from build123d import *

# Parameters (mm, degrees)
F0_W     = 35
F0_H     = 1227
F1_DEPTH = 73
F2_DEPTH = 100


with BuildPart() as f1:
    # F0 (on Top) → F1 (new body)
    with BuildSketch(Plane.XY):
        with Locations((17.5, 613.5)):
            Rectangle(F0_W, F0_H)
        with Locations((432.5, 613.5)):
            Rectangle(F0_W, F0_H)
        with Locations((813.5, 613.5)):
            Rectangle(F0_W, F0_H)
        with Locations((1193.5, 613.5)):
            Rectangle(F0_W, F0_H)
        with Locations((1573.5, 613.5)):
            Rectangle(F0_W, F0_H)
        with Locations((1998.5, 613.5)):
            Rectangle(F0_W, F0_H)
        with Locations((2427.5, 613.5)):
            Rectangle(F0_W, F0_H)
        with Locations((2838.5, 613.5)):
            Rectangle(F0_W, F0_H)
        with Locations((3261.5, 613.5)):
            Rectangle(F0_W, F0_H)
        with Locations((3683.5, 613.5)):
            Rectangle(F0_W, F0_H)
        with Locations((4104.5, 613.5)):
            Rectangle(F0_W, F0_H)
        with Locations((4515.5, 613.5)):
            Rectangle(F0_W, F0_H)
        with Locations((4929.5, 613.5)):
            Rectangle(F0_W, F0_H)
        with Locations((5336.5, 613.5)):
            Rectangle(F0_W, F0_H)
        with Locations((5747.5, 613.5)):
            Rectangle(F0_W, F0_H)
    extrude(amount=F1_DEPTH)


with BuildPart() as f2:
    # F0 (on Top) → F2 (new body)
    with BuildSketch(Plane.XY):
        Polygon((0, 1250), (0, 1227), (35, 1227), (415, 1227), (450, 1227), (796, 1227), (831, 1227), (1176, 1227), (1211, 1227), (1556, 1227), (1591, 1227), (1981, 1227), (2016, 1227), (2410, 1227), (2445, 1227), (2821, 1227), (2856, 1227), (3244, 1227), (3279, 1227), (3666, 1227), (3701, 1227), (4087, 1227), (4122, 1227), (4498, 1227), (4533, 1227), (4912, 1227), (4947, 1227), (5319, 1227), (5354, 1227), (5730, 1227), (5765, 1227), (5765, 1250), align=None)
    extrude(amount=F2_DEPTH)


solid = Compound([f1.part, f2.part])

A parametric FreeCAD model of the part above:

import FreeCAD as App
import Part
import Sketcher
from FreeCAD import Vector
Q = App.Units.Quantity

doc = App.newDocument("Part")
body = doc.addObject("PartDesign::Body", "Body")
body.AllowCompound = True

# Sketch on XY plane
sketch1 = body.newObject("Sketcher::SketchObject", "Sketch")
sketch1.AttachmentSupport = (doc.getObject("XY_Plane"), [""])
sketch1.MapMode = "FlatFace"
sketch1.addGeometry([
    Part.LineSegment(Vector(0, 1227, 0), Vector(0, 0, 0)),  # 0
    Part.LineSegment(Vector(0, 0, 0), Vector(35, 0, 0)),  # 1
    Part.LineSegment(Vector(35, 0, 0), Vector(35, 1227, 0)),  # 2
    Part.LineSegment(Vector(35, 1227, 0), Vector(0, 1227, 0)),  # 3
    Part.LineSegment(Vector(415, 1227, 0), Vector(415, 0, 0)),  # 4
    Part.LineSegment(Vector(415, 0, 0), Vector(450, 0, 0)),  # 5
    Part.LineSegment(Vector(450, 0, 0), Vector(450, 1227, 0)),  # 6
    Part.LineSegment(Vector(450, 1227, 0), Vector(415, 1227, 0)),  # 7
    Part.LineSegment(Vector(796, 1227, 0), Vector(796, 0, 0)),  # 8
    Part.LineSegment(Vector(796, 0, 0), Vector(831, 0, 0)),  # 9
    Part.LineSegment(Vector(831, 0, 0), Vector(831, 1227, 0)),  # 10
    Part.LineSegment(Vector(831, 1227, 0), Vector(796, 1227, 0)),  # 11
    Part.LineSegment(Vector(1176, 1227, 0), Vector(1176, 0, 0)),  # 12
    Part.LineSegment(Vector(1176, 0, 0), Vector(1211, 0, 0)),  # 13
    Part.LineSegment(Vector(1211, 0, 0), Vector(1211, 1227, 0)),  # 14
    Part.LineSegment(Vector(1211, 1227, 0), Vector(1176, 1227, 0)),  # 15
    Part.LineSegment(Vector(1556, 1227, 0), Vector(1556, 0, 0)),  # 16
    Part.LineSegment(Vector(1556, 0, 0), Vector(1591, 0, 0)),  # 17
    Part.LineSegment(Vector(1591, 0, 0), Vector(1591, 1227, 0)),  # 18
    Part.LineSegment(Vector(1591, 1227, 0), Vector(1556, 1227, 0)),  # 19
    Part.LineSegment(Vector(1981, 1227, 0), Vector(1981, 0, 0)),  # 20
    Part.LineSegment(Vector(1981, 0, 0), Vector(2016, 0, 0)),  # 21
    Part.LineSegment(Vector(2016, 0, 0), Vector(2016, 1227, 0)),  # 22
    Part.LineSegment(Vector(2016, 1227, 0), Vector(1981, 1227, 0)),  # 23
    Part.LineSegment(Vector(2410, 1227, 0), Vector(2410, 0, 0)),  # 24
    Part.LineSegment(Vector(2410, 0, 0), Vector(2445, 0, 0)),  # 25
    Part.LineSegment(Vector(2445, 0, 0), Vector(2445, 1227, 0)),  # 26
    Part.LineSegment(Vector(2445, 1227, 0), Vector(2410, 1227, 0)),  # 27
    Part.LineSegment(Vector(2821, 1227, 0), Vector(2821, 0, 0)),  # 28
    Part.LineSegment(Vector(2821, 0, 0), Vector(2856, 0, 0)),  # 29
    Part.LineSegment(Vector(2856, 0, 0), Vector(2856, 1227, 0)),  # 30
    Part.LineSegment(Vector(2856, 1227, 0), Vector(2821, 1227, 0)),  # 31
    Part.LineSegment(Vector(3244, 1227, 0), Vector(3244, 0, 0)),  # 32
    Part.LineSegment(Vector(3244, 0, 0), Vector(3279, 0, 0)),  # 33
    Part.LineSegment(Vector(3279, 0, 0), Vector(3279, 1227, 0)),  # 34
    Part.LineSegment(Vector(3279, 1227, 0), Vector(3244, 1227, 0)),  # 35
    Part.LineSegment(Vector(3666, 1227, 0), Vector(3666, 0, 0)),  # 36
    Part.LineSegment(Vector(3666, 0, 0), Vector(3701, 0, 0)),  # 37
    Part.LineSegment(Vector(3701, 0, 0), Vector(3701, 1227, 0)),  # 38
    Part.LineSegment(Vector(3701, 1227, 0), Vector(3666, 1227, 0)),  # 39
    Part.LineSegment(Vector(4087, 1227, 0), Vector(4087, 0, 0)),  # 40
    Part.LineSegment(Vector(4087, 0, 0), Vector(4122, 0, 0)),  # 41
    Part.LineSegment(Vector(4122, 0, 0), Vector(4122, 1227, 0)),  # 42
    Part.LineSegment(Vector(4122, 1227, 0), Vector(4087, 1227, 0)),  # 43
    Part.LineSegment(Vector(4498, 1227, 0), Vector(4498, 0, 0)),  # 44
    Part.LineSegment(Vector(4498, 0, 0), Vector(4533, 0, 0)),  # 45
    Part.LineSegment(Vector(4533, 0, 0), Vector(4533, 1227, 0)),  # 46
    Part.LineSegment(Vector(4533, 1227, 0), Vector(4498, 1227, 0)),  # 47
    Part.LineSegment(Vector(4912, 1227, 0), Vector(4912, 0, 0)),  # 48
    Part.LineSegment(Vector(4912, 0, 0), Vector(4947, 0, 0)),  # 49
    Part.LineSegment(Vector(4947, 0, 0), Vector(4947, 1227, 0)),  # 50
    Part.LineSegment(Vector(4947, 1227, 0), Vector(4912, 1227, 0)),  # 51
    Part.LineSegment(Vector(5319, 1227, 0), Vector(5319, 0, 0)),  # 52
    Part.LineSegment(Vector(5319, 0, 0), Vector(5354, 0, 0)),  # 53
    Part.LineSegment(Vector(5354, 0, 0), Vector(5354, 1227, 0)),  # 54
    Part.LineSegment(Vector(5354, 1227, 0), Vector(5319, 1227, 0)),  # 55
    Part.LineSegment(Vector(5730, 1227, 0), Vector(5730, 0, 0)),  # 56
    Part.LineSegment(Vector(5730, 0, 0), Vector(5765, 0, 0)),  # 57
    Part.LineSegment(Vector(5765, 0, 0), Vector(5765, 1227, 0)),  # 58
    Part.LineSegment(Vector(5765, 1227, 0), Vector(5730, 1227, 0)),  # 59
], False)
sketch1.addConstraint([
    Sketcher.Constraint("Coincident", 0, 2, 1, 1),
    Sketcher.Constraint("Coincident", 1, 2, 2, 1),
    Sketcher.Constraint("Coincident", 2, 2, 3, 1),
    Sketcher.Constraint("Coincident", 3, 2, 0, 1),
    Sketcher.Constraint("Coincident", 4, 2, 5, 1),
    Sketcher.Constraint("Coincident", 5, 2, 6, 1),
    Sketcher.Constraint("Coincident", 6, 2, 7, 1),
    Sketcher.Constraint("Coincident", 7, 2, 4, 1),
    Sketcher.Constraint("Coincident", 8, 2, 9, 1),
    Sketcher.Constraint("Coincident", 9, 2, 10, 1),
    Sketcher.Constraint("Coincident", 10, 2, 11, 1),
    Sketcher.Constraint("Coincident", 11, 2, 8, 1),
    Sketcher.Constraint("Coincident", 12, 2, 13, 1),
    Sketcher.Constraint("Coincident", 13, 2, 14, 1),
    Sketcher.Constraint("Coincident", 14, 2, 15, 1),
    Sketcher.Constraint("Coincident", 15, 2, 12, 1),
    Sketcher.Constraint("Coincident", 16, 2, 17, 1),
    Sketcher.Constraint("Coincident", 17, 2, 18, 1),
    Sketcher.Constraint("Coincident", 18, 2, 19, 1),
    Sketcher.Constraint("Coincident", 19, 2, 16, 1),
    Sketcher.Constraint("Coincident", 20, 2, 21, 1),
    Sketcher.Constraint("Coincident", 21, 2, 22, 1),
    Sketcher.Constraint("Coincident", 22, 2, 23, 1),
    Sketcher.Constraint("Coincident", 23, 2, 20, 1),
    Sketcher.Constraint("Coincident", 24, 2, 25, 1),
    Sketcher.Constraint("Coincident", 25, 2, 26, 1),
    Sketcher.Constraint("Coincident", 26, 2, 27, 1),
    Sketcher.Constraint("Coincident", 27, 2, 24, 1),
    Sketcher.Constraint("Coincident", 28, 2, 29, 1),
    Sketcher.Constraint("Coincident", 29, 2, 30, 1),
    Sketcher.Constraint("Coincident", 30, 2, 31, 1),
    Sketcher.Constraint("Coincident", 31, 2, 28, 1),
    Sketcher.Constraint("Coincident", 32, 2, 33, 1),
    Sketcher.Constraint("Coincident", 33, 2, 34, 1),
    Sketcher.Constraint("Coincident", 34, 2, 35, 1),
    Sketcher.Constraint("Coincident", 35, 2, 32, 1),
    Sketcher.Constraint("Coincident", 36, 2, 37, 1),
    Sketcher.Constraint("Coincident", 37, 2, 38, 1),
    Sketcher.Constraint("Coincident", 38, 2, 39, 1),
    Sketcher.Constraint("Coincident", 39, 2, 36, 1),
    Sketcher.Constraint("Coincident", 40, 2, 41, 1),
    Sketcher.Constraint("Coincident", 41, 2, 42, 1),
    Sketcher.Constraint("Coincident", 42, 2, 43, 1),
    Sketcher.Constraint("Coincident", 43, 2, 40, 1),
    Sketcher.Constraint("Coincident", 44, 2, 45, 1),
    Sketcher.Constraint("Coincident", 45, 2, 46, 1),
    Sketcher.Constraint("Coincident", 46, 2, 47, 1),
    Sketcher.Constraint("Coincident", 47, 2, 44, 1),
    Sketcher.Constraint("Coincident", 48, 2, 49, 1),
    Sketcher.Constraint("Coincident", 49, 2, 50, 1),
    Sketcher.Constraint("Coincident", 50, 2, 51, 1),
    Sketcher.Constraint("Coincident", 51, 2, 48, 1),
    Sketcher.Constraint("Coincident", 52, 2, 53, 1),
    Sketcher.Constraint("Coincident", 53, 2, 54, 1),
    Sketcher.Constraint("Coincident", 54, 2, 55, 1),
    Sketcher.Constraint("Coincident", 55, 2, 52, 1),
    Sketcher.Constraint("Coincident", 56, 2, 57, 1),
    Sketcher.Constraint("Coincident", 57, 2, 58, 1),
    Sketcher.Constraint("Coincident", 58, 2, 59, 1),
    Sketcher.Constraint("Coincident", 59, 2, 56, 1),
    Sketcher.Constraint("Vertical", 0),
    Sketcher.Constraint("Horizontal", 1),
    Sketcher.Constraint("Vertical", 2),
    Sketcher.Constraint("Horizontal", 3),
    Sketcher.Constraint("Vertical", 4),
    Sketcher.Constraint("Horizontal", 5),
    Sketcher.Constraint("Vertical", 6),
    Sketcher.Constraint("Horizontal", 7),
    Sketcher.Constraint("Vertical", 8),
    Sketcher.Constraint("Horizontal", 9),
    Sketcher.Constraint("Vertical", 10),
    Sketcher.Constraint("Horizontal", 11),
    Sketcher.Constraint("Vertical", 12),
    Sketcher.Constraint("Horizontal", 13),
    Sketcher.Constraint("Vertical", 14),
    Sketcher.Constraint("Horizontal", 15),
    Sketcher.Constraint("Vertical", 16),
    Sketcher.Constraint("Horizontal", 17),
    Sketcher.Constraint("Vertical", 18),
    Sketcher.Constraint("Horizontal", 19),
    Sketcher.Constraint("Vertical", 20),
    Sketcher.Constraint("Horizontal", 21),
    Sketcher.Constraint("Vertical", 22),
    Sketcher.Constraint("Horizontal", 23),
    Sketcher.Constraint("Vertical", 24),
    Sketcher.Constraint("Horizontal", 25),
    Sketcher.Constraint("Vertical", 26),
    Sketcher.Constraint("Horizontal", 27),
    Sketcher.Constraint("Vertical", 28),
    Sketcher.Constraint("Horizontal", 29),
    Sketcher.Constraint("Vertical", 30),
    Sketcher.Constraint("Horizontal", 31),
    Sketcher.Constraint("Vertical", 32),
    Sketcher.Constraint("Horizontal", 33),
    Sketcher.Constraint("Vertical", 34),
    Sketcher.Constraint("Horizontal", 35),
    Sketcher.Constraint("Vertical", 36),
    Sketcher.Constraint("Horizontal", 37),
    Sketcher.Constraint("Vertical", 38),
    Sketcher.Constraint("Horizontal", 39),
    Sketcher.Constraint("Vertical", 40),
    Sketcher.Constraint("Horizontal", 41),
    Sketcher.Constraint("Vertical", 42),
    Sketcher.Constraint("Horizontal", 43),
    Sketcher.Constraint("Vertical", 44),
    Sketcher.Constraint("Horizontal", 45),
    Sketcher.Constraint("Vertical", 46),
    Sketcher.Constraint("Horizontal", 47),
    Sketcher.Constraint("Vertical", 48),
    Sketcher.Constraint("Horizontal", 49),
    Sketcher.Constraint("Vertical", 50),
    Sketcher.Constraint("Horizontal", 51),
    Sketcher.Constraint("Vertical", 52),
    Sketcher.Constraint("Horizontal", 53),
    Sketcher.Constraint("Vertical", 54),
    Sketcher.Constraint("Horizontal", 55),
    Sketcher.Constraint("Vertical", 56),
    Sketcher.Constraint("Horizontal", 57),
    Sketcher.Constraint("Vertical", 58),
    Sketcher.Constraint("Horizontal", 59),
    Sketcher.Constraint("Coincident", 0, 2, -1, 1),
    Sketcher.Constraint("PointOnObject", 4, 2, -1),
    Sketcher.Constraint("PointOnObject", 8, 2, -1),
    Sketcher.Constraint("PointOnObject", 12, 2, -1),
    Sketcher.Constraint("PointOnObject", 16, 2, -1),
    Sketcher.Constraint("PointOnObject", 20, 2, -1),
    Sketcher.Constraint("PointOnObject", 24, 2, -1),
    Sketcher.Constraint("PointOnObject", 28, 2, -1),
    Sketcher.Constraint("PointOnObject", 32, 2, -1),
    Sketcher.Constraint("PointOnObject", 36, 2, -1),
    Sketcher.Constraint("PointOnObject", 40, 2, -1),
    Sketcher.Constraint("PointOnObject", 44, 2, -1),
    Sketcher.Constraint("PointOnObject", 48, 2, -1),
    Sketcher.Constraint("PointOnObject", 52, 2, -1),
    Sketcher.Constraint("PointOnObject", 56, 2, -1),
    Sketcher.Constraint("Horizontal", 3, 2, 6, 2),
    Sketcher.Constraint("Horizontal", 7, 2, 10, 2),
    Sketcher.Constraint("Horizontal", 11, 2, 14, 2),
    Sketcher.Constraint("Horizontal", 15, 2, 18, 2),
    Sketcher.Constraint("Horizontal", 19, 2, 22, 2),
    Sketcher.Constraint("Horizontal", 23, 2, 26, 2),
    Sketcher.Constraint("Horizontal", 27, 2, 30, 2),
    Sketcher.Constraint("Horizontal", 31, 2, 34, 2),
    Sketcher.Constraint("Horizontal", 35, 2, 38, 2),
    Sketcher.Constraint("Horizontal", 39, 2, 42, 2),
    Sketcher.Constraint("Horizontal", 43, 2, 46, 2),
    Sketcher.Constraint("Horizontal", 47, 2, 50, 2),
    Sketcher.Constraint("Horizontal", 51, 2, 54, 2),
    Sketcher.Constraint("Horizontal", 55, 2, 58, 2),
    Sketcher.Constraint("Equal", 3, 5),
    Sketcher.Constraint("Equal", 7, 9),
    Sketcher.Constraint("Equal", 11, 13),
    Sketcher.Constraint("Equal", 15, 17),
    Sketcher.Constraint("Equal", 19, 21),
    Sketcher.Constraint("Equal", 23, 25),
    Sketcher.Constraint("Equal", 27, 29),
    Sketcher.Constraint("Equal", 31, 33),
    Sketcher.Constraint("Equal", 35, 37),
    Sketcher.Constraint("Equal", 39, 41),
    Sketcher.Constraint("Equal", 43, 45),
    Sketcher.Constraint("Equal", 47, 49),
    Sketcher.Constraint("Equal", 51, 53),
    Sketcher.Constraint("Equal", 55, 57),
    Sketcher.Constraint("DistanceX", 1, 1, 1, 2, Q("35 mm")),
    Sketcher.Constraint("DistanceY", 0, 2, 0, 1, Q("1227 mm")),
    Sketcher.Constraint("DistanceX", -1, 1, 4, 2, Q("415 mm")),
    Sketcher.Constraint("DistanceX", -1, 1, 8, 2, Q("796 mm")),
    Sketcher.Constraint("DistanceX", -1, 1, 12, 2, Q("1176 mm")),
    Sketcher.Constraint("DistanceX", -1, 1, 16, 2, Q("1556 mm")),
    Sketcher.Constraint("DistanceX", -1, 1, 20, 2, Q("1981 mm")),
    Sketcher.Constraint("DistanceX", -1, 1, 24, 2, Q("2410 mm")),
    Sketcher.Constraint("DistanceX", -1, 1, 28, 2, Q("2821 mm")),
    Sketcher.Constraint("DistanceX", -1, 1, 32, 2, Q("3244 mm")),
    Sketcher.Constraint("DistanceX", -1, 1, 36, 2, Q("3666 mm")),
    Sketcher.Constraint("DistanceX", -1, 1, 40, 2, Q("4087 mm")),
    Sketcher.Constraint("DistanceX", -1, 1, 44, 2, Q("4498 mm")),
    Sketcher.Constraint("DistanceX", -1, 1, 48, 2, Q("4912 mm")),
    Sketcher.Constraint("DistanceX", -1, 1, 52, 2, Q("5319 mm")),
    Sketcher.Constraint("DistanceX", -1, 1, 56, 2, Q("5730 mm")),
])
pad1 = body.newObject("PartDesign::Pad", "Pad")
pad1.Profile = sketch1
pad1.Length = 73
body2 = doc.addObject("PartDesign::Body", "Body001")

# Sketch on XY plane
sketch2 = body2.newObject("Sketcher::SketchObject", "Sketch001")
sketch2.AttachmentSupport = (doc.getObject("XY_Plane001"), [""])
sketch2.MapMode = "FlatFace"
sketch2.addGeometry([
    Part.LineSegment(Vector(0, 1250, 0), Vector(0, 1227, 0)),
    Part.LineSegment(Vector(0, 1227, 0), Vector(5765, 1227, 0)),
    Part.LineSegment(Vector(5765, 1227, 0), Vector(5765, 1250, 0)),
    Part.LineSegment(Vector(5765, 1250, 0), Vector(0, 1250, 0)),
], False)
sketch2.addConstraint([
    Sketcher.Constraint("Coincident", 0, 2, 1, 1),
    Sketcher.Constraint("Coincident", 1, 2, 2, 1),
    Sketcher.Constraint("Coincident", 2, 2, 3, 1),
    Sketcher.Constraint("Coincident", 3, 2, 0, 1),
    Sketcher.Constraint("Vertical", 0),
    Sketcher.Constraint("Horizontal", 1),
    Sketcher.Constraint("Vertical", 2),
    Sketcher.Constraint("Horizontal", 3),
    Sketcher.Constraint("PointOnObject", 0, 2, -2),
    Sketcher.Constraint("DistanceX", 1, 1, 1, 2, Q("5765 mm")),
    Sketcher.Constraint("DistanceY", 0, 2, 0, 1, Q("23 mm")),
    Sketcher.Constraint("DistanceY", -1, 1, 0, 2, Q("1227 mm")),
])
pad2 = body2.newObject("PartDesign::Pad", "Pad001")
pad2.Profile = sketch2
pad2.Length = 100

doc.recompute()
